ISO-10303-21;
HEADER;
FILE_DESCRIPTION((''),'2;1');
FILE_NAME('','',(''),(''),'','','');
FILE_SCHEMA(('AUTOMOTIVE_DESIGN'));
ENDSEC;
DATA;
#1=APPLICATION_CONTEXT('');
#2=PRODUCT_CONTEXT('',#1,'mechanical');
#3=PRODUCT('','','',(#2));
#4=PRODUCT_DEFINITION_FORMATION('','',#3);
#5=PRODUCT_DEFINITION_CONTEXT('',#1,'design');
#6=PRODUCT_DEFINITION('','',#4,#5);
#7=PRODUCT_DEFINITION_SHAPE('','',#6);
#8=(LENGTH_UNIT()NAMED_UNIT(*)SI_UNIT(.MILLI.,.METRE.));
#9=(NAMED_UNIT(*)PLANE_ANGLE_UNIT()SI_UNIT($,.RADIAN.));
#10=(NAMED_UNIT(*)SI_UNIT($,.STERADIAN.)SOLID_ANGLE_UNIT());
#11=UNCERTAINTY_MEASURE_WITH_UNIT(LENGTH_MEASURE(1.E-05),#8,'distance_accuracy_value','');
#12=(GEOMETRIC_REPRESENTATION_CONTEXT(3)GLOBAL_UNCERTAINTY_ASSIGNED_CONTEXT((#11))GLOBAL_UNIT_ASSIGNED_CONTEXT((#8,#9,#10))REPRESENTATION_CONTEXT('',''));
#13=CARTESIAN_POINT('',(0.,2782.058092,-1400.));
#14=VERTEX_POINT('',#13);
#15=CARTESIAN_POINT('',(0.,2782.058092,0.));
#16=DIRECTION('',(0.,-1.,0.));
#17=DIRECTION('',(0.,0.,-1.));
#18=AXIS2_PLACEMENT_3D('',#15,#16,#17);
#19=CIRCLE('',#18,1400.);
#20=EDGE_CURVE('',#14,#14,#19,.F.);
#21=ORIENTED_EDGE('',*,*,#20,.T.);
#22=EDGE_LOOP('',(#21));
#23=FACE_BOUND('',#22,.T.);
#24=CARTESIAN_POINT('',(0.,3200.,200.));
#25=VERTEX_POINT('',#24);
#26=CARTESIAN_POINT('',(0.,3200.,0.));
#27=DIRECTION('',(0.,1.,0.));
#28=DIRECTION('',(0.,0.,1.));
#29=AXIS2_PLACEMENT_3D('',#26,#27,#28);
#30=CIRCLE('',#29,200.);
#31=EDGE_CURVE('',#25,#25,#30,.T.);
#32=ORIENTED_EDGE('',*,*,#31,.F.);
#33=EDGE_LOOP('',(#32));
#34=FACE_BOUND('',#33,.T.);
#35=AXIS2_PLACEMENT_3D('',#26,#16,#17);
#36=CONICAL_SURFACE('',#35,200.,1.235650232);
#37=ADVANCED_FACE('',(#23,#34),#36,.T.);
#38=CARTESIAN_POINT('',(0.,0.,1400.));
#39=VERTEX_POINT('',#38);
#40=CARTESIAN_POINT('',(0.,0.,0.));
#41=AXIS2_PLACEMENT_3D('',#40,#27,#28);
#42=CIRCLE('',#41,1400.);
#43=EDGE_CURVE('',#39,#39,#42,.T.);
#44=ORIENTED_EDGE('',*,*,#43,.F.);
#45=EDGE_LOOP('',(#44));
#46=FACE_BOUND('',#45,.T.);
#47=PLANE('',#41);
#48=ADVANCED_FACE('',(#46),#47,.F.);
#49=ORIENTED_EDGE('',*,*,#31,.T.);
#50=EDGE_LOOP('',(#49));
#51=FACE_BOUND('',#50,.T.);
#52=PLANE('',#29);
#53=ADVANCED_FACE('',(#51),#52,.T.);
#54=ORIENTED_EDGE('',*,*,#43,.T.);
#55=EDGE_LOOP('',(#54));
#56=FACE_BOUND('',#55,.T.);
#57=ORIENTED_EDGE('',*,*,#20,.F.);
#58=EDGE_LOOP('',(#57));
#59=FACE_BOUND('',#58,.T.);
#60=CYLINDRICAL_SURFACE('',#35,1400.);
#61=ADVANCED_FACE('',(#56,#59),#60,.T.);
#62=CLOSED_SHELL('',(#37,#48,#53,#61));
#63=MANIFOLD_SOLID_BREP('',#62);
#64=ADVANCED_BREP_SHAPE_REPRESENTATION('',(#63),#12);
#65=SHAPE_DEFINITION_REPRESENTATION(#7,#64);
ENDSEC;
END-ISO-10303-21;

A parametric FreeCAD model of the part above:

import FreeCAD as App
import Part
import Sketcher
from FreeCAD import Vector
Q = App.Units.Quantity


def add_polygon(sketch, points):
    """Adds a closed chain of lines whose ends are joined by coincident constraints."""
    first, n = sketch.GeometryCount, len(points)
    for a, b in zip(points, points[1:] + points[:1]):
        sketch.addGeometry(Part.LineSegment(App.Vector(*a, 0), App.Vector(*b, 0)), False)
    for i in range(n):
        sketch.addConstraint(Sketcher.Constraint("Coincident", first + i, 2, first + (i + 1) % n, 1))

doc = App.newDocument("Part")
body = doc.addObject("PartDesign::Body", "Body")

# Sketch on XZ plane
sketch1 = body.newObject("Sketcher::SketchObject", "Sketch")
sketch1.AttachmentSupport = (doc.getObject("XZ_Plane"), [""])
sketch1.MapMode = "FlatFace"
sketch1.addGeometry(Part.Circle(Vector(0, 0, 0), Vector(0, 0, 1), 1400), False)
sketch1.addConstraint([
    Sketcher.Constraint("Coincident", 0, 3, -1, 1),
    Sketcher.Constraint("Diameter", 0, Q("2800 mm")),
])
pad1 = body.newObject("PartDesign::Pad", "Pad")
pad1.Profile = sketch1
pad1.Length = 3200
pad1.Reversed = True

# Sketch on XY plane
sketch2 = body.newObject("Sketcher::SketchObject", "Sketch001")
sketch2.AttachmentSupport = (doc.getObject("XY_Plane"), [""])
sketch2.MapMode = "FlatFace"
add_polygon(sketch2, [(200, 3200), (1991, 2576), (1991, 3200)])  # lines 0-2
sketch2.addConstraint([
    Sketcher.Constraint("Vertical", 1),
    Sketcher.Constraint("Horizontal", 2),
    Sketcher.Constraint("DistanceY", -1, 1, 1, 2, Q("3200 mm")),
    Sketcher.Constraint("DistanceX", -1, 1, 2, 2, Q("200 mm")),
    Sketcher.Constraint("DistanceX", 2, 2, 2, 1, Q("1790.74237 mm")),
    Sketcher.Constraint("DistanceY", 1, 1, 1, 2, Q("623.688569 mm")),
])
groove = body.newObject("PartDesign::Groove", "Groove")
groove.Profile = sketch2
groove.ReferenceAxis = (sketch2, ["V_Axis"])
groove.Angle = 360

doc.recompute()
